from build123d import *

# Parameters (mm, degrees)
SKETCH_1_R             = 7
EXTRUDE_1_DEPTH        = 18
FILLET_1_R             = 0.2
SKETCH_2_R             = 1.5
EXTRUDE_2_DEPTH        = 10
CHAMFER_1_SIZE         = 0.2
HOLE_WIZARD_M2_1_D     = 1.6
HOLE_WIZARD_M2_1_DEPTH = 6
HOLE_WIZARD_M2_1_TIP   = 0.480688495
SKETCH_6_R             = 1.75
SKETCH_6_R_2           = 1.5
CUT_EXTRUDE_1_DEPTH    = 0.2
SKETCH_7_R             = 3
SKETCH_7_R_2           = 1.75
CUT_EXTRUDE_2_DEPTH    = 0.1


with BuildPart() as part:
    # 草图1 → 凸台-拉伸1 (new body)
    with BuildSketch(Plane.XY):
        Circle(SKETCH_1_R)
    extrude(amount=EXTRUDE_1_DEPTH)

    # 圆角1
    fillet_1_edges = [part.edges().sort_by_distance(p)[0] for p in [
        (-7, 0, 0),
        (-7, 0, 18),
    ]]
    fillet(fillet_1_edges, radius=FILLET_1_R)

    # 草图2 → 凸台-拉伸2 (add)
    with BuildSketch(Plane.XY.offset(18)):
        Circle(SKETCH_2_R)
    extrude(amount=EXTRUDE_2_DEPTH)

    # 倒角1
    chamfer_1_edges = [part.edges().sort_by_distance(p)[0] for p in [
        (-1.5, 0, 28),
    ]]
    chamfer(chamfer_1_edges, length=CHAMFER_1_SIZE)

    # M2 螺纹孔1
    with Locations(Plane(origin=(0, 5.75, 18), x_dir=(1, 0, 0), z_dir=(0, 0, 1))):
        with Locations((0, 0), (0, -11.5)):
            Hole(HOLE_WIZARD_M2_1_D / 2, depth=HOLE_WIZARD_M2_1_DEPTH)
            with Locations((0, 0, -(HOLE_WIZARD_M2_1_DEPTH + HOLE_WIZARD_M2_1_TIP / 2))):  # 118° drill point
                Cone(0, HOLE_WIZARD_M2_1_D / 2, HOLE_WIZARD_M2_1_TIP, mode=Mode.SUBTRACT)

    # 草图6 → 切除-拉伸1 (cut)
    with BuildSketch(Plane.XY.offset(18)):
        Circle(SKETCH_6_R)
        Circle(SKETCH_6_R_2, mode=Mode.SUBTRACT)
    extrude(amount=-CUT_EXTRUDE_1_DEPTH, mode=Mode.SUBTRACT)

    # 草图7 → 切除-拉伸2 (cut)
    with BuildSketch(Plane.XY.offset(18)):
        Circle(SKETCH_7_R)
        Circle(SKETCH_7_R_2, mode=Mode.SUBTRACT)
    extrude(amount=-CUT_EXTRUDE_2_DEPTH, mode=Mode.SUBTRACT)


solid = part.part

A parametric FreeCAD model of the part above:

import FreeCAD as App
import Part
import Sketcher
from FreeCAD import Vector
Q = App.Units.Quantity


def edges_at(feature, points):
    """Names of the edges that pass closest to the given points."""
    edges = feature.Shape.Edges
    near = lambda p: min(range(len(edges)), key=lambda i: edges[i].distToShape(Part.Vertex(*p))[0])
    return sorted({f"Edge{near(p) + 1}" for p in points})

doc = App.newDocument("Part")
params = doc.addObject("Spreadsheet::Sheet", "Params")
for row, (alias, value) in enumerate([
    ("sketch1_diameter", "14 mm"),
    ("pad1_length", "18 mm"),
    ("fillet_radius", "0.2 mm"),
    ("sketch2_diameter", "3 mm"),
    ("pad2_length", "10 mm"),
    ("chamfer_size", "0.2 mm"),
    ("sketch3_diameter", "1.6 mm"),
    ("hole_diameter", "1.6 mm"),
    ("hole_depth", "6 mm"),
    ("sketch4_diameter", "3 mm"),
    ("sketch4_diameter2", "3.5 mm"),
    ("pocket1_length", "0.2 mm"),
    ("sketch5_diameter", "6 mm"),
    ("sketch5_diameter2", "3.5 mm"),
    ("pocket2_length", "0.1 mm"),
], start=1):
    params.set(f"A{row}", alias)
    params.set(f"B{row}", "=" + value)
    params.setAlias(f"B{row}", alias)

body = doc.addObject("PartDesign::Body", "Body")

# Sketch on XY plane
sketch1 = body.newObject("Sketcher::SketchObject", "Sketch")
sketch1.AttachmentSupport = (doc.getObject("XY_Plane"), [""])
sketch1.MapMode = "FlatFace"
sketch1.addGeometry(Part.Circle(Vector(0, 0, 0), Vector(0, 0, 1), 7), False)
sketch1.addConstraint([
    Sketcher.Constraint("Coincident", 0, 3, -1, 1),
    Sketcher.Constraint("Diameter", 0, Q("14 mm")),
])
sketch1.setExpression("Constraints[1]", "Params.sketch1_diameter")
pad1 = body.newObject("PartDesign::Pad", "Pad")
pad1.Profile = sketch1
pad1.setExpression("Length", "Params.pad1_length")
doc.recompute()

fillet = body.newObject("PartDesign::Fillet", "Fillet")
fillet.Base = (pad1, edges_at(pad1, [(-7, 0, 0), (-7, 0, 18)]))
fillet.setExpression("Radius", "Params.fillet_radius")

# Sketch on XY plane
sketch2 = body.newObject("Sketcher::SketchObject", "Sketch001")
sketch2.AttachmentSupport = (doc.getObject("XY_Plane"), [""])
sketch2.MapMode = "FlatFace"
sketch2.AttachmentOffset = App.Placement(Vector(0, 0, 18), App.Rotation())
sketch2.addGeometry(Part.Circle(Vector(0, 0, 0), Vector(0, 0, 1), 1.5), False)
sketch2.addConstraint([
    Sketcher.Constraint("Coincident", 0, 3, -1, 1),
    Sketcher.Constraint("Diameter", 0, Q("3 mm")),
])
sketch2.setExpression("Constraints[1]", "Params.sketch2_diameter")
pad2 = body.newObject("PartDesign::Pad", "Pad001")
pad2.Profile = sketch2
pad2.setExpression("Length", "Params.pad2_length")
doc.recompute()

chamfer = body.newObject("PartDesign::Chamfer", "Chamfer")
chamfer.Base = (pad2, edges_at(pad2, [(-1.5, 0, 28)]))
chamfer.setExpression("Size", "Params.chamfer_size")

# Sketch on XY plane
sketch3 = body.newObject("Sketcher::SketchObject", "Sketch002")
sketch3.AttachmentSupport = (doc.getObject("XY_Plane"), [""])
sketch3.MapMode = "FlatFace"
sketch3.AttachmentOffset = App.Placement(Vector(0, 0, 18), App.Rotation())
sketch3.addGeometry([
    Part.Circle(Vector(0, 5.75, 0), Vector(0, 0, 1), 0.8),
    Part.Circle(Vector(0, -5.75, 0), Vector(0, 0, 1), 0.8),
], False)
sketch3.addConstraint([
    Sketcher.Constraint("Equal", 0, 1),
    Sketcher.Constraint("Symmetric", 0, 3, 1, 3, -1, 1),
    Sketcher.Constraint("PointOnObject", 0, 3, -2),
    Sketcher.Constraint("Diameter", 0, Q("1.6 mm")),
    Sketcher.Constraint("DistanceY", 1, 3, 0, 3, Q("11.5 mm")),
])
sketch3.setExpression("Constraints[3]", "Params.sketch3_diameter")
doc.recompute()
hole = body.newObject("PartDesign::Hole", "Hole")
hole.Profile = sketch3
hole.ThreadType = "None"
hole.setExpression("Diameter", "Params.hole_diameter")
hole.DepthType = "Dimension"
hole.setExpression("Depth", "Params.hole_depth")
hole.DrillPoint = "Angled"
hole.DrillPointAngle = 118

# Sketch on XY plane
sketch4 = body.newObject("Sketcher::SketchObject", "Sketch003")
sketch4.AttachmentSupport = (doc.getObject("XY_Plane"), [""])
sketch4.MapMode = "FlatFace"
sketch4.AttachmentOffset = App.Placement(Vector(0, 0, 18), App.Rotation())
sketch4.addGeometry([
    Part.Circle(Vector(0, 0, 0), Vector(0, 0, 1), 1.75),
    Part.Circle(Vector(0, 0, 0), Vector(0, 0, 1), 1.5),
], False)
sketch4.addConstraint([
    Sketcher.Constraint("Coincident", 0, 3, -1, 1),
    Sketcher.Constraint("Coincident", 1, 3, -1, 1),
    Sketcher.Constraint("Diameter", 1, Q("3 mm")),
    Sketcher.Constraint("Diameter", 0, Q("3.5 mm")),
])
sketch4.setExpression("Constraints[2]", "Params.sketch4_diameter")
sketch4.setExpression("Constraints[3]", "Params.sketch4_diameter2")
pocket1 = body.newObject("PartDesign::Pocket", "Pocket")
pocket1.Profile = sketch4
pocket1.setExpression("Length", "Params.pocket1_length")

# Sketch on XY plane
sketch5 = body.newObject("Sketcher::SketchObject", "Sketch004")
sketch5.AttachmentSupport = (doc.getObject("XY_Plane"), [""])
sketch5.MapMode = "FlatFace"
sketch5.AttachmentOffset = App.Placement(Vector(0, 0, 18), App.Rotation())
sketch5.addGeometry([
    Part.Circle(Vector(0, 0, 0), Vector(0, 0, 1), 3),
    Part.Circle(Vector(0, 0, 0), Vector(0, 0, 1), 1.75),
], False)
sketch5.addConstraint([
    Sketcher.Constraint("Coincident", 0, 3, -1, 1),
    Sketcher.Constraint("Coincident", 1, 3, -1, 1),
    Sketcher.Constraint("Diameter", 0, Q("6 mm")),
    Sketcher.Constraint("Diameter", 1, Q("3.5 mm")),
])
sketch5.setExpression("Constraints[2]", "Params.sketch5_diameter")
sketch5.setExpression("Constraints[3]", "Params.sketch5_diameter2")
pocket2 = body.newObject("PartDesign::Pocket", "Pocket001")
pocket2.Profile = sketch5
pocket2.setExpression("Length", "Params.pocket2_length")

doc.recompute()
